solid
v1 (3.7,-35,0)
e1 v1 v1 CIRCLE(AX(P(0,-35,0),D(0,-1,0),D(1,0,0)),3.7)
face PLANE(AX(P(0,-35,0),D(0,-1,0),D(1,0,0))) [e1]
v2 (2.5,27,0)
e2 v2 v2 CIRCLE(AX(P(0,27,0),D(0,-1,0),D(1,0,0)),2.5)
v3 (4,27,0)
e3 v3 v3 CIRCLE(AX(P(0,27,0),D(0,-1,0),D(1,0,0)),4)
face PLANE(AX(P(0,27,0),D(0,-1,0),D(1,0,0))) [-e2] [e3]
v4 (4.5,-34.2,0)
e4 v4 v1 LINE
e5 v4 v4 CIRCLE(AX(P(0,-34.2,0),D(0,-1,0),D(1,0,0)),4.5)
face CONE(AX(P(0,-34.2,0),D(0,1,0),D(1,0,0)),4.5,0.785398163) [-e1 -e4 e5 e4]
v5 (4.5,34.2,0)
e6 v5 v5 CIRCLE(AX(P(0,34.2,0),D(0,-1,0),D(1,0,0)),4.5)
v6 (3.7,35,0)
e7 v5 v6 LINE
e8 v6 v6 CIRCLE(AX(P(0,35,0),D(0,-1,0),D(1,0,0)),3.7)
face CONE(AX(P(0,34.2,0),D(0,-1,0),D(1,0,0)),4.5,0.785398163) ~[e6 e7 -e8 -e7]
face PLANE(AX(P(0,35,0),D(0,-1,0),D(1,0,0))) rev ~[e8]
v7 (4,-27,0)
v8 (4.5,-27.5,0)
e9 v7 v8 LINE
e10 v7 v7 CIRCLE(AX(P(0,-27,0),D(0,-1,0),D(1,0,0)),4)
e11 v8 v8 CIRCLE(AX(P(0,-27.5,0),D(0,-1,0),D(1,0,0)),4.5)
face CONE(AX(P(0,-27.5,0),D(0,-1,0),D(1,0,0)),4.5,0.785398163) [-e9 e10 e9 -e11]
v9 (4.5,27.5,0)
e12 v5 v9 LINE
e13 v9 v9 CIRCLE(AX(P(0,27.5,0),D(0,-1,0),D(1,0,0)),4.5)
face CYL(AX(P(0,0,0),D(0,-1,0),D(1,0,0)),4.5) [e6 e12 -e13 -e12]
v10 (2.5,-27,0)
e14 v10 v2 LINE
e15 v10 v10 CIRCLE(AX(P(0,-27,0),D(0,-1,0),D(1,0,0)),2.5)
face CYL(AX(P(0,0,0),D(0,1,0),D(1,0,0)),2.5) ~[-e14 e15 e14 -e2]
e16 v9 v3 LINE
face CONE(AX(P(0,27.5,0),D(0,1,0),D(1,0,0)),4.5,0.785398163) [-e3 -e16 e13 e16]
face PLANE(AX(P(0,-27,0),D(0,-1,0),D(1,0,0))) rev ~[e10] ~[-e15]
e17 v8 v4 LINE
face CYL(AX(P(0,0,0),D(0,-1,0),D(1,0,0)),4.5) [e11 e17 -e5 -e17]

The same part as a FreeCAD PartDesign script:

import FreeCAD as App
import Part
import Sketcher


def edges_at(feature, points):
    """Names of the edges that pass closest to the given points."""
    edges = feature.Shape.Edges
    near = lambda p: min(range(len(edges)), key=lambda i: edges[i].distToShape(Part.Vertex(*p))[0])
    return sorted({f"Edge{near(p) + 1}" for p in points})

doc = App.newDocument("Part")
body = doc.addObject("PartDesign::Body", "Body")

sketch1 = body.newObject("Sketcher::SketchObject", "Sketch")
sketch1.AttachmentSupport = (doc.getObject("XZ_Plane"), [""])
sketch1.MapMode = "FlatFace"
sketch1.addGeometry(Part.Circle(App.Vector(0, 0, 0), App.Vector(0, 0, 1), 4.5), False)
sketch1.addConstraint([
    Sketcher.Constraint("Coincident", 0, 3, -1, 1),
    Sketcher.Constraint("Diameter", 0, 9.0),
])
pad1 = body.newObject("PartDesign::Pad", "Pad")
pad1.Profile = sketch1
pad1.Length = 70
pad1.Midplane = True

sketch2 = body.newObject("Sketcher::SketchObject", "Sketch001")
sketch2.AttachmentSupport = (doc.getObject("XZ_Plane"), [""])
sketch2.MapMode = "FlatFace"
sketch2.addGeometry([
    Part.Circle(App.Vector(0, 0, 0), App.Vector(0, 0, 1), 4.5),
    Part.Circle(App.Vector(0, 0, 0), App.Vector(0, 0, 1), 2.5),
], False)
sketch2.addConstraint([
    Sketcher.Constraint("Coincident", 0, 3, -1, 1),
    Sketcher.Constraint("Coincident", 1, 3, -1, 1),
    Sketcher.Constraint("Diameter", 0, 9.0),
    Sketcher.Constraint("Diameter", 1, 5.0),
])
pocket1 = body.newObject("PartDesign::Pocket", "Pocket")
pocket1.Profile = sketch2
pocket1.Length = 54
pocket1.Midplane = True
doc.recompute()

chamfer = body.newObject("PartDesign::Chamfer", "Chamfer")
chamfer.Base = (pocket1, edges_at(pocket1, [(-4.5, 35, 0), (-4.5, -35, 0)]))
chamfer.Size = 0.8
doc.recompute()

chamfer2 = body.newObject("PartDesign::Chamfer", "Chamfer001")
chamfer2.Base = (chamfer, edges_at(chamfer, [(-4.5, 27, 0), (-4.5, -27, 0)]))
chamfer2.Size = 0.5

doc.recompute()
